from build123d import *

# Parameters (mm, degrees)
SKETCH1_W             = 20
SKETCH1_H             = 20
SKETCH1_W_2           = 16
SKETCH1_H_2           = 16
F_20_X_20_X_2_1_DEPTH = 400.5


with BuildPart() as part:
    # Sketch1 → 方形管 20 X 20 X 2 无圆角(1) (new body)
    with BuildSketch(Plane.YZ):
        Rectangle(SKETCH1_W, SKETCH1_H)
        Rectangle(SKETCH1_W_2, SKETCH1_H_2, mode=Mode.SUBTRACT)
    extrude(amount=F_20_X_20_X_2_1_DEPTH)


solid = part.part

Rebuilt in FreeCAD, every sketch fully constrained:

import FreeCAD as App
import Part
import Sketcher

doc = App.newDocument("Part")
params = doc.addObject("Spreadsheet::Sheet", "Params")
for row, (alias, value) in enumerate([
    ("sketch1_width", "20 mm"),
    ("sketch1_width2", "16 mm"),
    ("pad1_length", "400.5 mm"),
], start=1):
    params.set(f"A{row}", alias)
    params.set(f"B{row}", "=" + value)
    params.setAlias(f"B{row}", alias)

body = doc.addObject("PartDesign::Body", "Body")

# Sketch on YZ plane
sketch1 = body.newObject("Sketcher::SketchObject", "Sketch")
sketch1.AttachmentSupport = (doc.getObject("YZ_Plane"), [""])
sketch1.MapMode = "FlatFace"
sketch1.addGeometry(Part.LineSegment(App.Vector(-10, 10, 0), App.Vector(-10, -10, 0)), False)
sketch1.addGeometry(Part.LineSegment(App.Vector(-10, -10, 0), App.Vector(10, -10, 0)), False)
sketch1.addGeometry(Part.LineSegment(App.Vector(10, -10, 0), App.Vector(10, 10, 0)), False)
sketch1.addGeometry(Part.LineSegment(App.Vector(10, 10, 0), App.Vector(-10, 10, 0)), False)
sketch1.addGeometry(Part.LineSegment(App.Vector(8, -8, 0), App.Vector(-8, -8, 0)), False)
sketch1.addGeometry(Part.LineSegment(App.Vector(-8, -8, 0), App.Vector(-8, 8, 0)), False)
sketch1.addGeometry(Part.LineSegment(App.Vector(-8, 8, 0), App.Vector(8, 8, 0)), False)
sketch1.addGeometry(Part.LineSegment(App.Vector(8, 8, 0), App.Vector(8, -8, 0)), False)
sketch1.addConstraint(Sketcher.Constraint("Coincident", 0, 2, 1, 1))
sketch1.addConstraint(Sketcher.Constraint("Coincident", 1, 2, 2, 1))
sketch1.addConstraint(Sketcher.Constraint("Coincident", 2, 2, 3, 1))
sketch1.addConstraint(Sketcher.Constraint("Coincident", 3, 2, 0, 1))
sketch1.addConstraint(Sketcher.Constraint("Coincident", 4, 2, 5, 1))
sketch1.addConstraint(Sketcher.Constraint("Coincident", 5, 2, 6, 1))
sketch1.addConstraint(Sketcher.Constraint("Coincident", 6, 2, 7, 1))
sketch1.addConstraint(Sketcher.Constraint("Coincident", 7, 2, 4, 1))
sketch1.addConstraint(Sketcher.Constraint("Vertical", 0))
sketch1.addConstraint(Sketcher.Constraint("Horizontal", 1))
sketch1.addConstraint(Sketcher.Constraint("Vertical", 2))
sketch1.addConstraint(Sketcher.Constraint("Horizontal", 3))
sketch1.addConstraint(Sketcher.Constraint("Horizontal", 4))
sketch1.addConstraint(Sketcher.Constraint("Vertical", 5))
sketch1.addConstraint(Sketcher.Constraint("Horizontal", 6))
sketch1.addConstraint(Sketcher.Constraint("Vertical", 7))
sketch1.addConstraint(Sketcher.Constraint("Symmetric", 0, 2, 2, 2, -1, 1))
sketch1.addConstraint(Sketcher.Constraint("Symmetric", 4, 2, 6, 2, -1, 1))
sketch1.addConstraint(Sketcher.Constraint("Equal", 3, 0))
sketch1.addConstraint(Sketcher.Constraint("Equal", 6, 5))
sketch1.addConstraint(Sketcher.Constraint("DistanceX", 1, 1, 1, 2, 20.0))
sketch1.addConstraint(Sketcher.Constraint("DistanceX", 4, 2, 4, 1, 16.0))
sketch1.setExpression("Constraints[20]", "Params.sketch1_width")
sketch1.setExpression("Constraints[21]", "Params.sketch1_width2")
pad1 = body.newObject("PartDesign::Pad", "Pad")
pad1.Profile = sketch1
pad1.setExpression("Length", "Params.pad1_length")

doc.recompute()
